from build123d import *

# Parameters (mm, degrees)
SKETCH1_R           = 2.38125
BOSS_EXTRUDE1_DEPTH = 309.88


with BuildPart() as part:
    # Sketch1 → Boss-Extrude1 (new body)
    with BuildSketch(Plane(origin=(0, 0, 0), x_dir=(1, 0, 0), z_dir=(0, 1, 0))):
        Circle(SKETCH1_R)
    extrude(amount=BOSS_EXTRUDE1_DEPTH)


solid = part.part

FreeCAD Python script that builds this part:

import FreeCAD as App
import Part
import Sketcher

V = App.Vector
Q = App.Units.Quantity

doc = App.newDocument("Part")
body = doc.addObject("PartDesign::Body", "Body")

# Sketch on XZ plane
sketch1 = body.newObject("Sketcher::SketchObject", "Sketch")
sketch1.AttachmentSupport = (doc.getObject("XZ_Plane"), [""])
sketch1.MapMode = "FlatFace"
sketch1.addGeometry(Part.Circle(V(0, 0, 0), V(0, 0, 1), 2.4), False)
sketch1.addConstraint(Sketcher.Constraint("Coincident", 0, 3, -1, 1))
sketch1.addConstraint(Sketcher.Constraint("Diameter", 0, Q("0.1875 in")))
pad1 = body.newObject("PartDesign::Pad", "Pad")
pad1.Profile = sketch1
pad1.Length = Q("12.2 in")
pad1.Reversed = True

doc.recompute()
